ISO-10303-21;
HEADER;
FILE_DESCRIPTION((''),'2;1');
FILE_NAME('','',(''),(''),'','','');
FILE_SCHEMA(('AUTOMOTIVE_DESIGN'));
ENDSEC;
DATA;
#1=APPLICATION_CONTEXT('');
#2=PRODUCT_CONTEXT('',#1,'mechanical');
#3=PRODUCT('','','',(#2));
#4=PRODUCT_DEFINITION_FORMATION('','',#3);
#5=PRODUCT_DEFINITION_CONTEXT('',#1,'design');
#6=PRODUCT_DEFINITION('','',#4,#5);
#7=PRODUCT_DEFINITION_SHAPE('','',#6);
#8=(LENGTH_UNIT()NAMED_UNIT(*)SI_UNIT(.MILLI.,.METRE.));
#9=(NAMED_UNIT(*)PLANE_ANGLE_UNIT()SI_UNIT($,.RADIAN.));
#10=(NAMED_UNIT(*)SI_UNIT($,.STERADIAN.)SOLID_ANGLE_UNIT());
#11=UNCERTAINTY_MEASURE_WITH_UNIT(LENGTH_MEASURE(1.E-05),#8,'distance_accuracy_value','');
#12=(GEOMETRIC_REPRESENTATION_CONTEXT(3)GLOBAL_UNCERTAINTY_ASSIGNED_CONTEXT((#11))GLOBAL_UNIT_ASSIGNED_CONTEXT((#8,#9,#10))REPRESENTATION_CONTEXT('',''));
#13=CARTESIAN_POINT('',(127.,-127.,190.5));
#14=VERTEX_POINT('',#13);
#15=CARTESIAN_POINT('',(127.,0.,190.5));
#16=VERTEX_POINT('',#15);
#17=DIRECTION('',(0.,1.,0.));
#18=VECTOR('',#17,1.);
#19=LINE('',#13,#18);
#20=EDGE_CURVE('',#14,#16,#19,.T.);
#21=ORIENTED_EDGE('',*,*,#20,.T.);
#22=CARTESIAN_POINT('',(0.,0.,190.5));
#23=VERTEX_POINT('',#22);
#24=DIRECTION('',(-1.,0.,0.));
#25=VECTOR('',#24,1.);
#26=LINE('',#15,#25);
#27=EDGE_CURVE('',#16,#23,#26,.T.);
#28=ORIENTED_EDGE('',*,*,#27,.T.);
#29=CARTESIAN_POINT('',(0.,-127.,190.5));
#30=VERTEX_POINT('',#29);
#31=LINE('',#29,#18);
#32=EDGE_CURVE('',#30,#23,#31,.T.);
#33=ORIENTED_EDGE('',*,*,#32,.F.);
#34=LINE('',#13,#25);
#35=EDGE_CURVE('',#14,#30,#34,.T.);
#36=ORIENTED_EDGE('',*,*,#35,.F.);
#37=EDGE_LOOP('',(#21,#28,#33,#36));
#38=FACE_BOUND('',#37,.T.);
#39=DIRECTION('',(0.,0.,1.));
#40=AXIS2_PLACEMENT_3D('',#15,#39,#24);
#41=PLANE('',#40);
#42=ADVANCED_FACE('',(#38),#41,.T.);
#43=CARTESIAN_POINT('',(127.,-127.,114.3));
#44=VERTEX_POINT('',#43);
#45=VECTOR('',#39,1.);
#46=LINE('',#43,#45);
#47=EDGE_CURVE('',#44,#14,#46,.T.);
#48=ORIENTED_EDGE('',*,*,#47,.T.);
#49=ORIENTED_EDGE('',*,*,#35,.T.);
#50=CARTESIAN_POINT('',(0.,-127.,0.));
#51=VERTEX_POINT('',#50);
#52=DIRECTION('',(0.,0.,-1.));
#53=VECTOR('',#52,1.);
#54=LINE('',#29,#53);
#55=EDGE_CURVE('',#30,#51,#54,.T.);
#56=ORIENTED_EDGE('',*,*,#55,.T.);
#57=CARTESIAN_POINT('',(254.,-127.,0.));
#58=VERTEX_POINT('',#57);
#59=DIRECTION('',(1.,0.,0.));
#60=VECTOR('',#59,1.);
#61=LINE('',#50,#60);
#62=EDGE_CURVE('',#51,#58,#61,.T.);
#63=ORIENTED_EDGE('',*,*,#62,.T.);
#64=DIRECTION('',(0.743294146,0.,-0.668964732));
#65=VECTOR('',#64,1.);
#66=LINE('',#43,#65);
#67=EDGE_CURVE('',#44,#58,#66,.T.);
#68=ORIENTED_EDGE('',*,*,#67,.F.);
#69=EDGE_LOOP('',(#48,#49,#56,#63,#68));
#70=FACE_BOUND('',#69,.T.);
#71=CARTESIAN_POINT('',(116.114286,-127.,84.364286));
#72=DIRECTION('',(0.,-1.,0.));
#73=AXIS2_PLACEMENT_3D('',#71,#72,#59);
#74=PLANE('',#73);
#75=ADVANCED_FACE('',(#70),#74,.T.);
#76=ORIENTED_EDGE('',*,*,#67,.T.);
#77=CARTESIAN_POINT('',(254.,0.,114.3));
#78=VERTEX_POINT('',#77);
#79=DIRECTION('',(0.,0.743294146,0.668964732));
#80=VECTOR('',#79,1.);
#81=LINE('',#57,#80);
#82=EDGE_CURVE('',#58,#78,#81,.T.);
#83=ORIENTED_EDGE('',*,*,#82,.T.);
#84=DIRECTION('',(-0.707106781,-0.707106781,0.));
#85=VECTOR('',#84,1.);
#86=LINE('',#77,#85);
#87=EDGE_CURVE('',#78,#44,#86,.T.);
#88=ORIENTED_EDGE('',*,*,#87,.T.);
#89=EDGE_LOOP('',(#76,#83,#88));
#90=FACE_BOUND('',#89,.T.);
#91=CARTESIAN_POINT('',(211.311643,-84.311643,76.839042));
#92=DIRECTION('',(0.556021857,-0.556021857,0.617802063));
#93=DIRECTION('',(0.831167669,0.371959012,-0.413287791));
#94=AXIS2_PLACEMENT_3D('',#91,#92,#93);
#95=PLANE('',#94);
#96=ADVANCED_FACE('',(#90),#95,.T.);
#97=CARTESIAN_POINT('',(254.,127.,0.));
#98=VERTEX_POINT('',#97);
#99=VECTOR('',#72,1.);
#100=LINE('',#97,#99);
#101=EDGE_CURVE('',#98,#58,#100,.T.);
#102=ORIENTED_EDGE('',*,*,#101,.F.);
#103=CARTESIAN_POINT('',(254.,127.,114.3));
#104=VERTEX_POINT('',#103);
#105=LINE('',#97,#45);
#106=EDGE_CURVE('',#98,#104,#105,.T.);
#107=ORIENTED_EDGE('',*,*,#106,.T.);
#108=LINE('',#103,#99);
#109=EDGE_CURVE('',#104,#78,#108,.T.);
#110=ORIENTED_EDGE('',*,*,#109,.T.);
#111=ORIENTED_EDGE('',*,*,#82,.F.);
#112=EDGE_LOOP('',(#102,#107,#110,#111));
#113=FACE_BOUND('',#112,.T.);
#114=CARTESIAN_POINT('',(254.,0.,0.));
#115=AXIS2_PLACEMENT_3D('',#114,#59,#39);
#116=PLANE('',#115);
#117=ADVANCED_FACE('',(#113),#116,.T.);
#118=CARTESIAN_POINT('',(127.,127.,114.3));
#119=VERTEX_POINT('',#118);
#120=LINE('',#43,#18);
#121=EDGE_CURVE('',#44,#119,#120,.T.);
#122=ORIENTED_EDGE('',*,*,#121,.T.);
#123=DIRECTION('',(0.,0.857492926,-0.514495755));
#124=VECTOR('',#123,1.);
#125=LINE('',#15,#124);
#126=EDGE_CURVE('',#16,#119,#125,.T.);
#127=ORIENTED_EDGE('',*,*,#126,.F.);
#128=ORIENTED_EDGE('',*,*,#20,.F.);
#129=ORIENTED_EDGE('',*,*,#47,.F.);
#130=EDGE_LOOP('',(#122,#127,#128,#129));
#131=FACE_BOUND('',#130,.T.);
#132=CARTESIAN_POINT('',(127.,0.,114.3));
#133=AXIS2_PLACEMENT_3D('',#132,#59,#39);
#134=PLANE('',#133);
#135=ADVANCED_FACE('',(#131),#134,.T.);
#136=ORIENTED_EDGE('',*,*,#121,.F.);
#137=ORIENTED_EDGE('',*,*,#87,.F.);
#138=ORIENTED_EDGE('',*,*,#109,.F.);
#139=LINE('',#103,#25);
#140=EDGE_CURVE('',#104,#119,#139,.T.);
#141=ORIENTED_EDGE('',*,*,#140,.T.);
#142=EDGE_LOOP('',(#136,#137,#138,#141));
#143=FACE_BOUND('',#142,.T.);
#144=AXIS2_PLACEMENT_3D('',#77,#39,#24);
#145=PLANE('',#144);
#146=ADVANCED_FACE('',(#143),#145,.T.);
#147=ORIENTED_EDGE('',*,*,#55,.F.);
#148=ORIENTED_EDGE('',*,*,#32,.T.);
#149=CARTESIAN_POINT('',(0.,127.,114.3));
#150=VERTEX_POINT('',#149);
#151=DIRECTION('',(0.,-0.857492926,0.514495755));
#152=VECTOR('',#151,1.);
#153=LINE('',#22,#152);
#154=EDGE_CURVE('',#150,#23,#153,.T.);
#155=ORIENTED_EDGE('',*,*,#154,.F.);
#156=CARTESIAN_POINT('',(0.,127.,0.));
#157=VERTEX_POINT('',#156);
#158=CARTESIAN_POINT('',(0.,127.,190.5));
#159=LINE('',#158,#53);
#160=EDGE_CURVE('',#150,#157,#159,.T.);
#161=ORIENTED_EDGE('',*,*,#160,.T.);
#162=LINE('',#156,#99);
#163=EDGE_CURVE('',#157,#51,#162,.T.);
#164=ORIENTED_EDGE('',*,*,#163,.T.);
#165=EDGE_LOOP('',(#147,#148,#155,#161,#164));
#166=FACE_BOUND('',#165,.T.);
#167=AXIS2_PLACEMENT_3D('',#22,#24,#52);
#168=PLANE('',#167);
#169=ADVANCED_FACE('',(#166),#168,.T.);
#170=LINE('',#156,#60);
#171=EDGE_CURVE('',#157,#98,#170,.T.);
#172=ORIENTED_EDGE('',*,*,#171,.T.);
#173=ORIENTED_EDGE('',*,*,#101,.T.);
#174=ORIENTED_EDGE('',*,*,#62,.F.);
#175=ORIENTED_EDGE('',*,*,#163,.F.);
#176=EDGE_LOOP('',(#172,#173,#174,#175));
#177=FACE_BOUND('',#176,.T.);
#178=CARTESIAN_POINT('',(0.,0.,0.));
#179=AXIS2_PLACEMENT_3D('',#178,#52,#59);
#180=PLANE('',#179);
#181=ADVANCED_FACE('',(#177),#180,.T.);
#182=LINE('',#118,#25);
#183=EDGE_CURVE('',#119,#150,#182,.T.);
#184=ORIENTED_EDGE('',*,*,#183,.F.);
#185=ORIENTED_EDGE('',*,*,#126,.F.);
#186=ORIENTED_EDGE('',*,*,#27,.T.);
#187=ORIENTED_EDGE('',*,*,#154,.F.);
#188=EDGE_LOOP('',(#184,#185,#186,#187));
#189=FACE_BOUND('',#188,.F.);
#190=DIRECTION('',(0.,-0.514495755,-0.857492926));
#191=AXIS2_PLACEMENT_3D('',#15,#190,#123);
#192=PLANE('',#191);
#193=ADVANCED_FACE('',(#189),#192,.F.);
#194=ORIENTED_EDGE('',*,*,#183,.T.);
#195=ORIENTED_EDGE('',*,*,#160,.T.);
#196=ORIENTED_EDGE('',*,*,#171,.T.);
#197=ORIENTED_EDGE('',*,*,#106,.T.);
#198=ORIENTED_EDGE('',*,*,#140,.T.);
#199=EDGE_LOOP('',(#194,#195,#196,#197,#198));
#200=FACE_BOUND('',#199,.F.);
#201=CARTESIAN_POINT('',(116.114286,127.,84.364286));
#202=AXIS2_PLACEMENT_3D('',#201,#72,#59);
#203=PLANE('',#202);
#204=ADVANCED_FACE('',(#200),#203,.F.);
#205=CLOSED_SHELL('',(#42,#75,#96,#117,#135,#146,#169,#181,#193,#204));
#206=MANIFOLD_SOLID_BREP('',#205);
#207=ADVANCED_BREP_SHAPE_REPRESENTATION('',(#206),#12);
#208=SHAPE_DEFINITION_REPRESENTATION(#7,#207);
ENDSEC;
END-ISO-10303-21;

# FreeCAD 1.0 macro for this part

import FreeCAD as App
import Part
import Sketcher
from FreeCAD import Vector
Q = App.Units.Quantity

doc = App.newDocument("Part")
params = doc.addObject("Spreadsheet::Sheet", "Params")
for row, (alias, value) in enumerate([
    ("sketch1_width", "10 in"),
    ("sketch1_height", "3 in"),
    ("sketch1_height2", "7.5 in"),
    ("pad1_length", "10 in"),
    ("sketch2_width", "5 in"),
    ("sketch2_height", "3 in"),
    ("pocket1_length", "10 in"),
], start=1):
    params.set(f"A{row}", alias)
    params.set(f"B{row}", "=" + value)
    params.setAlias(f"B{row}", alias)

body = doc.addObject("PartDesign::Body", "Body")

# Sketch on XZ plane
sketch1 = body.newObject("Sketcher::SketchObject", "Sketch")
sketch1.AttachmentSupport = (doc.getObject("XZ_Plane"), [""])
sketch1.MapMode = "FlatFace"
sketch1.addGeometry([
    Part.LineSegment(Vector(0, 190, 0), Vector(0, 0, 0)),  # 0
    Part.LineSegment(Vector(0, 0, 0), Vector(254, 0, 0)),  # 1
    Part.LineSegment(Vector(254, 0, 0), Vector(254, 114, 0)),  # 2
    Part.LineSegment(Vector(254, 114, 0), Vector(127, 114, 0)),  # 3
    Part.LineSegment(Vector(127, 114, 0), Vector(127, 190, 0)),  # 4
    Part.LineSegment(Vector(127, 190, 0), Vector(0, 190, 0)),  # 5
], False)
sketch1.addConstraint([
    Sketcher.Constraint("Coincident", 0, 2, 1, 1),
    Sketcher.Constraint("Coincident", 1, 2, 2, 1),
    Sketcher.Constraint("Coincident", 2, 2, 3, 1),
    Sketcher.Constraint("Coincident", 3, 2, 4, 1),
    Sketcher.Constraint("Coincident", 4, 2, 5, 1),
    Sketcher.Constraint("Coincident", 5, 2, 0, 1),
    Sketcher.Constraint("Vertical", 0),
    Sketcher.Constraint("Horizontal", 1),
    Sketcher.Constraint("Vertical", 2),
    Sketcher.Constraint("Horizontal", 3),
    Sketcher.Constraint("Vertical", 4),
    Sketcher.Constraint("Horizontal", 5),
    Sketcher.Constraint("Coincident", 0, 2, -1, 1),
    Sketcher.Constraint("Equal", 3, 5),
    Sketcher.Constraint("DistanceX", 1, 1, 1, 2, Q("10 in")),
    Sketcher.Constraint("DistanceY", 4, 1, 4, 2, Q("3 in")),
    Sketcher.Constraint("DistanceY", 0, 2, 0, 1, Q("7.5 in")),
])
sketch1.setExpression("Constraints[14]", "Params.sketch1_width")
sketch1.setExpression("Constraints[15]", "Params.sketch1_height")
sketch1.setExpression("Constraints[16]", "Params.sketch1_height2")
pad1 = body.newObject("PartDesign::Pad", "Pad")
pad1.Profile = sketch1
pad1.setExpression("Length", "Params.pad1_length")
pad1.Midplane = True

# Sketch on YZ plane
sketch2 = body.newObject("Sketcher::SketchObject", "Sketch001")
sketch2.AttachmentSupport = (doc.getObject("YZ_Plane"), [""])
sketch2.MapMode = "FlatFace"
sketch2.AttachmentOffset = App.Placement(Vector(0, 0, 5 * 25.4), App.Rotation())
sketch2.addGeometry([
    Part.LineSegment(Vector(127, 190, 0), Vector(0, 190, 0)),
    Part.LineSegment(Vector(0, 190, 0), Vector(127, 114, 0)),
    Part.LineSegment(Vector(127, 114, 0), Vector(127, 190, 0)),
], False)
sketch2.addConstraint([
    Sketcher.Constraint("Coincident", 0, 2, 1, 1),
    Sketcher.Constraint("Coincident", 1, 2, 2, 1),
    Sketcher.Constraint("Coincident", 2, 2, 0, 1),
    Sketcher.Constraint("Horizontal", 0),
    Sketcher.Constraint("Vertical", 2),
    Sketcher.Constraint("PointOnObject", 0, 2, -2),
    Sketcher.Constraint("DistanceX", 0, 2, 0, 1, Q("5 in")),
    Sketcher.Constraint("DistanceY", 2, 1, 2, 2, Q("3 in")),
    Sketcher.Constraint("DistanceY", -1, 1, 0, 2, Q("7.5 in")),
])
sketch2.setExpression("Constraints[6]", "Params.sketch2_width")
sketch2.setExpression("Constraints[7]", "Params.sketch2_height")
pocket1 = body.newObject("PartDesign::Pocket", "Pocket")
pocket1.Profile = sketch2
pocket1.setExpression("Length", "Params.pocket1_length")

# Sketch on an angled plane
sketch3 = body.newObject("Sketcher::SketchObject", "Sketch002")
sketch3.Placement = App.Placement(Vector(117.790076, -117.790076, 130.877863), App.Rotation(Vector(0.831167669, 0.371959012, -0.413287791), Vector(0, 0.743294146, 0.668964731), Vector(0.556021857, -0.556021857, 0.617802063), "ZXY"))
sketch3.addGeometry([
    Part.LineSegment(Vector(164, -94, 0), Vector(164, 76, 0)),
    Part.LineSegment(Vector(164, 76, 0), Vector(11, -18, 0)),
    Part.LineSegment(Vector(11, -18, 0), Vector(164, -94, 0)),
], False)
sketch3.addConstraint([
    Sketcher.Constraint("Coincident", 0, 2, 1, 1),
    Sketcher.Constraint("Coincident", 1, 2, 2, 1),
    Sketcher.Constraint("Coincident", 2, 2, 0, 1),
    Sketcher.Constraint("Vertical", 0),
    Sketcher.Constraint("DistanceY", 0, 1, 0, 2, 170.861025),
    Sketcher.Constraint("DistanceY", -1, 1, 0, 2, 76.462669),
    Sketcher.Constraint("DistanceX", 1, 2, 0, 2, 152.797088),
    Sketcher.Constraint("DistanceY", 2, 2, 1, 2, 76.462669),
    Sketcher.Constraint("DistanceX", -1, 1, 0, 2, 163.877793),
])
pocket2 = body.newObject("PartDesign::Pocket", "Pocket001")
pocket2.Profile = sketch3
pocket2.Type = "ThroughAll"
pocket2.Reversed = True

doc.recompute()
